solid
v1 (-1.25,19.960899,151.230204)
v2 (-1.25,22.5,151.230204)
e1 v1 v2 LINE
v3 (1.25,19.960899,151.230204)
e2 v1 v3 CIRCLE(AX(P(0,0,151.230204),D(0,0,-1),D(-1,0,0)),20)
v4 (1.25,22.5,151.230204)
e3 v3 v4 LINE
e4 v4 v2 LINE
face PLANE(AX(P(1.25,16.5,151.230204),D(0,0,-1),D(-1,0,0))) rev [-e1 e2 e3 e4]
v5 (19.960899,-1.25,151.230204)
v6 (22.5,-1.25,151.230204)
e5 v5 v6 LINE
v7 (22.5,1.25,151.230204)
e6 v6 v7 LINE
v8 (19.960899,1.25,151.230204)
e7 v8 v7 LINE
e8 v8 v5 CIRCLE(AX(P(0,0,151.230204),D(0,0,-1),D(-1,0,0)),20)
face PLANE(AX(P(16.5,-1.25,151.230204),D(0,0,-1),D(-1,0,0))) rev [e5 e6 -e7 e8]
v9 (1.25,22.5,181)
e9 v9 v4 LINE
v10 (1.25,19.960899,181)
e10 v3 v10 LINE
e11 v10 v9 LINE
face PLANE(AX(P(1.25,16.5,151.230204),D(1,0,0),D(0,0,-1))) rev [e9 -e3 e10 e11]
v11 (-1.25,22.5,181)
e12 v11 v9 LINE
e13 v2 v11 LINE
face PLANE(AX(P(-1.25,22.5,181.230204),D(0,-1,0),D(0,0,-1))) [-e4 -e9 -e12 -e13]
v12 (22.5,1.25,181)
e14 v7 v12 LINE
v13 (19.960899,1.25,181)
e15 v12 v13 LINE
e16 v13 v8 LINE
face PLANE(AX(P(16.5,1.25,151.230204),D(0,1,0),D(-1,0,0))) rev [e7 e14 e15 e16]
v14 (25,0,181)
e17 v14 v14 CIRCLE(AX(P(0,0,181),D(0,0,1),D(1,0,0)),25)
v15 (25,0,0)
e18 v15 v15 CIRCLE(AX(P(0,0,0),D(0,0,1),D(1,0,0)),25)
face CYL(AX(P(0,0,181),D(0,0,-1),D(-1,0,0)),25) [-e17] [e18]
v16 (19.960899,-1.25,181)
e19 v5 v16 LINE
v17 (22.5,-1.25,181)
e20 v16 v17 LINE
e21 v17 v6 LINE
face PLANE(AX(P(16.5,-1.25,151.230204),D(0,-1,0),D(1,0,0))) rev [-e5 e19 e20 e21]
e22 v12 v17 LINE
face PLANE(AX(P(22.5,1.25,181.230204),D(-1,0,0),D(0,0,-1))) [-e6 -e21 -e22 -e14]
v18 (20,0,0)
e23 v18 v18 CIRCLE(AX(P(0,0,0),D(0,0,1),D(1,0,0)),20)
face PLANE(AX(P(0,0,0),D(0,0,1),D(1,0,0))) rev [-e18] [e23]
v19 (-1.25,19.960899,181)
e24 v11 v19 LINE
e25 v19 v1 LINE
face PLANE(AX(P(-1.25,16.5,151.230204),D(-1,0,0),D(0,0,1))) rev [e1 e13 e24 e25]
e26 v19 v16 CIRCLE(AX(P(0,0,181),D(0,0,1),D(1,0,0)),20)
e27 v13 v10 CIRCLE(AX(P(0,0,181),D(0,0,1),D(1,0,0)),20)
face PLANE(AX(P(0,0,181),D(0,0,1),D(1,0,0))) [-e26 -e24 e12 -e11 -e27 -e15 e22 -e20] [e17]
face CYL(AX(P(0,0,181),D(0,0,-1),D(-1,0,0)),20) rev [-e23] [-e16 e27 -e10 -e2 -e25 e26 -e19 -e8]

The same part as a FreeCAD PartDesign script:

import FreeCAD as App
import Part
import Sketcher


def add_polygon(sketch, points):
    """Adds a closed chain of lines whose ends are joined by coincident constraints."""
    first, n = sketch.GeometryCount, len(points)
    for a, b in zip(points, points[1:] + points[:1]):
        sketch.addGeometry(Part.LineSegment(App.Vector(*a, 0), App.Vector(*b, 0)), False)
    for i in range(n):
        sketch.addConstraint(Sketcher.Constraint("Coincident", first + i, 2, first + (i + 1) % n, 1))

doc = App.newDocument("Part")
body = doc.addObject("PartDesign::Body", "Body")

# Sketch on XY plane
sketch1 = doc.addObject("Sketcher::SketchObject", "Sketch")
body.addObject(sketch1)
sketch1.AttachmentSupport = (doc.XY_Plane, [""])
sketch1.MapMode = "FlatFace"
sketch1.addGeometry(Part.Circle(App.Vector(0, 0, 0), App.Vector(0, 0, 1), 25), False)
sketch1.addGeometry(Part.Circle(App.Vector(0, 0, 0), App.Vector(0, 0, 1), 20), False)
sketch1.addConstraint(Sketcher.Constraint("Coincident", 0, 3, -1, 1))
sketch1.addConstraint(Sketcher.Constraint("Coincident", 1, 3, -1, 1))
sketch1.addConstraint(Sketcher.Constraint("Diameter", 0, 50.0))
sketch1.addConstraint(Sketcher.Constraint("Diameter", 1, 40.0))
pad1 = doc.addObject("PartDesign::Pad", "Pad")
body.addObject(pad1)
pad1.Profile = sketch1
pad1.Length = 181

# Sketch on XZ plane
sketch2 = doc.addObject("Sketcher::SketchObject", "Sketch001")
body.addObject(sketch2)
sketch2.AttachmentSupport = (doc.XZ_Plane, [""])
sketch2.MapMode = "FlatFace"
sketch2.AttachmentOffset = App.Placement(App.Vector(0, 0, -22.5), App.Rotation())
add_polygon(sketch2, [(1.25, 181.230204), (1.25, 151.230204), (-1.25, 151.230204), (-1.25, 181.230204)])  # lines 0-3
sketch2.addConstraint(Sketcher.Constraint("Vertical", 0))
sketch2.addConstraint(Sketcher.Constraint("Horizontal", 1))
sketch2.addConstraint(Sketcher.Constraint("Vertical", 2))
sketch2.addConstraint(Sketcher.Constraint("Horizontal", 3))
sketch2.addConstraint(Sketcher.Constraint("DistanceY", 0, 2, 0, 1, 30.0))
sketch2.addConstraint(Sketcher.Constraint("DistanceX", 1, 2, 1, 1, 2.5))
sketch2.addConstraint(Sketcher.Constraint("DistanceX", -1, 1, 0, 2, 1.25))
sketch2.addConstraint(Sketcher.Constraint("DistanceY", -1, 1, 0, 2, 151.230204))
pocket1 = doc.addObject("PartDesign::Pocket", "Pocket")
body.addObject(pocket1)
pocket1.Profile = sketch2
pocket1.Length = 6
pocket1.Reversed = True
doc.recompute()

polarpattern = doc.addObject("PartDesign::PolarPattern", "PolarPattern")
body.addObject(polarpattern)
polarpattern.Originals = [pocket1]
polarpattern.Axis = (doc.Z_Axis, [""])
polarpattern.Angle = 90
polarpattern.Occurrences = 2
polarpattern.Reversed = True
body.Tip = polarpattern

doc.recompute()
